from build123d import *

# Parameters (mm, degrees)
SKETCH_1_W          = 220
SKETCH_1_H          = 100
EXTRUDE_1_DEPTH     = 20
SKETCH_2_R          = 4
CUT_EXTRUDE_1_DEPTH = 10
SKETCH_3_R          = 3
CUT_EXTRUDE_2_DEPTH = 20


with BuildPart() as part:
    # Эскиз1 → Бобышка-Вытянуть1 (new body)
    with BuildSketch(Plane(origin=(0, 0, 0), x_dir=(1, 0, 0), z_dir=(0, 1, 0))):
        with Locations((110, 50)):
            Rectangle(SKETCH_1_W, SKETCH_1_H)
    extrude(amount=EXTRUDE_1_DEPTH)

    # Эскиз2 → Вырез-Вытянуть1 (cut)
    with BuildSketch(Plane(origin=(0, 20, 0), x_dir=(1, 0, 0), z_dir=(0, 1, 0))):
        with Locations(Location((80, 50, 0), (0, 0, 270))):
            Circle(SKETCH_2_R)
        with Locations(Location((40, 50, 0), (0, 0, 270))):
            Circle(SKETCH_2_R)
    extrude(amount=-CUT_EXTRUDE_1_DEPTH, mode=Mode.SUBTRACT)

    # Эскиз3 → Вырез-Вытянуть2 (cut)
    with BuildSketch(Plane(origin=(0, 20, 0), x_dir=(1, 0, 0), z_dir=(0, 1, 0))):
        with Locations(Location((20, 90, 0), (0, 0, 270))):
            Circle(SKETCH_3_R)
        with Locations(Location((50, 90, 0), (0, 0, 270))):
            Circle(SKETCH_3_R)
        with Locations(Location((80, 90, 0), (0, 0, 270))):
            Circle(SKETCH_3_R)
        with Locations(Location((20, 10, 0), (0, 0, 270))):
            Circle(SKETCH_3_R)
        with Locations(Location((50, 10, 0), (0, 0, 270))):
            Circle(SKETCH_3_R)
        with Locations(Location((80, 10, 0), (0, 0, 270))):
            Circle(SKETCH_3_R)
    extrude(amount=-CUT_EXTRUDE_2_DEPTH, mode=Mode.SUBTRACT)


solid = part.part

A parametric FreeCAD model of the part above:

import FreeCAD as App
import Part
import Sketcher

V = App.Vector
Q = App.Units.Quantity


def add_polygon(sketch, points):
    """Adds a closed chain of lines whose ends are joined by coincident constraints."""
    first, n = sketch.GeometryCount, len(points)
    for a, b in zip(points, points[1:] + points[:1]):
        sketch.addGeometry(Part.LineSegment(App.Vector(*a, 0), App.Vector(*b, 0)), False)
    for i in range(n):
        sketch.addConstraint(Sketcher.Constraint("Coincident", first + i, 2, first + (i + 1) % n, 1))

doc = App.newDocument("Part")
body = doc.addObject("PartDesign::Body", "Body")

sketch1 = doc.addObject("Sketcher::SketchObject", "Sketch")
body.addObject(sketch1)
sketch1.AttachmentSupport = (doc.XZ_Plane, [""])
sketch1.MapMode = "FlatFace"
add_polygon(sketch1, [(0, -100), (0, 0), (220, 0), (220, -100)])
sketch1.addConstraint([
    Sketcher.Constraint("Vertical", 0),
    Sketcher.Constraint("Horizontal", 1),
    Sketcher.Constraint("Vertical", 2),
    Sketcher.Constraint("Horizontal", 3),
    Sketcher.Constraint("Coincident", 0, 2, -1, 1),
    Sketcher.Constraint("DistanceX", 1, 1, 1, 2, Q("220 mm")),
    Sketcher.Constraint("DistanceY", 0, 1, 0, 2, Q("100 mm")),
])
pad1 = doc.addObject("PartDesign::Pad", "Pad")
body.addObject(pad1)
pad1.Profile = sketch1
pad1.Length = 20
pad1.Reversed = True

sketch2 = doc.addObject("Sketcher::SketchObject", "Sketch001")
body.addObject(sketch2)
sketch2.AttachmentSupport = (doc.XZ_Plane, [""])
sketch2.MapMode = "FlatFace"
sketch2.AttachmentOffset = App.Placement(V(0, 0, -20), App.Rotation())
sketch2.addGeometry([
    Part.Circle(V(80, -50, 0), V(0, 0, 1), 4),
    Part.Circle(V(40, -50, 0), V(0, 0, 1), 4),
], False)
sketch2.addConstraint([
    Sketcher.Constraint("Equal", 0, 1),
    Sketcher.Constraint("Horizontal", 0, 3, 1, 3),
    Sketcher.Constraint("Diameter", 0, Q("8 mm")),
    Sketcher.Constraint("DistanceX", -1, 1, 0, 3, Q("80 mm")),
    Sketcher.Constraint("DistanceY", 0, 3, -1, 1, Q("50 mm")),
    Sketcher.Constraint("DistanceX", -1, 1, 1, 3, Q("40 mm")),
])
pocket1 = doc.addObject("PartDesign::Pocket", "Pocket")
body.addObject(pocket1)
pocket1.Profile = sketch2
pocket1.Length = 10
pocket1.Reversed = True

sketch3 = doc.addObject("Sketcher::SketchObject", "Sketch002")
body.addObject(sketch3)
sketch3.AttachmentSupport = (doc.XZ_Plane, [""])
sketch3.MapMode = "FlatFace"
sketch3.AttachmentOffset = App.Placement(V(0, 0, -20), App.Rotation())
sketch3.addGeometry([
    Part.Circle(V(20, -90, 0), V(0, 0, 1), 3),
    Part.Circle(V(50, -90, 0), V(0, 0, 1), 3),
    Part.Circle(V(80, -90, 0), V(0, 0, 1), 3),
    Part.Circle(V(20, -10, 0), V(0, 0, 1), 3),
    Part.Circle(V(50, -10, 0), V(0, 0, 1), 3),
    Part.Circle(V(80, -10, 0), V(0, 0, 1), 3),
], False)
sketch3.addConstraint([
    Sketcher.Constraint("Equal", 0, 1),
    Sketcher.Constraint("Equal", 1, 2),
    Sketcher.Constraint("Equal", 2, 3),
    Sketcher.Constraint("Equal", 3, 4),
    Sketcher.Constraint("Equal", 4, 5),
    Sketcher.Constraint("Horizontal", 0, 3, 1, 3),
    Sketcher.Constraint("Horizontal", 1, 3, 2, 3),
    Sketcher.Constraint("Horizontal", 3, 3, 4, 3),
    Sketcher.Constraint("Horizontal", 4, 3, 5, 3),
    Sketcher.Constraint("Vertical", 0, 3, 3, 3),
    Sketcher.Constraint("Vertical", 1, 3, 4, 3),
    Sketcher.Constraint("Vertical", 2, 3, 5, 3),
    Sketcher.Constraint("Diameter", 0, Q("6 mm")),
    Sketcher.Constraint("DistanceX", -1, 1, 0, 3, Q("20 mm")),
    Sketcher.Constraint("DistanceY", 0, 3, -1, 1, Q("90 mm")),
    Sketcher.Constraint("DistanceX", -1, 1, 1, 3, Q("50 mm")),
    Sketcher.Constraint("DistanceX", -1, 1, 2, 3, Q("80 mm")),
    Sketcher.Constraint("DistanceY", 3, 3, -1, 1, Q("10 mm")),
])
pocket2 = doc.addObject("PartDesign::Pocket", "Pocket001")
body.addObject(pocket2)
pocket2.Profile = sketch3
pocket2.Length = 20
pocket2.Reversed = True

doc.recompute()
